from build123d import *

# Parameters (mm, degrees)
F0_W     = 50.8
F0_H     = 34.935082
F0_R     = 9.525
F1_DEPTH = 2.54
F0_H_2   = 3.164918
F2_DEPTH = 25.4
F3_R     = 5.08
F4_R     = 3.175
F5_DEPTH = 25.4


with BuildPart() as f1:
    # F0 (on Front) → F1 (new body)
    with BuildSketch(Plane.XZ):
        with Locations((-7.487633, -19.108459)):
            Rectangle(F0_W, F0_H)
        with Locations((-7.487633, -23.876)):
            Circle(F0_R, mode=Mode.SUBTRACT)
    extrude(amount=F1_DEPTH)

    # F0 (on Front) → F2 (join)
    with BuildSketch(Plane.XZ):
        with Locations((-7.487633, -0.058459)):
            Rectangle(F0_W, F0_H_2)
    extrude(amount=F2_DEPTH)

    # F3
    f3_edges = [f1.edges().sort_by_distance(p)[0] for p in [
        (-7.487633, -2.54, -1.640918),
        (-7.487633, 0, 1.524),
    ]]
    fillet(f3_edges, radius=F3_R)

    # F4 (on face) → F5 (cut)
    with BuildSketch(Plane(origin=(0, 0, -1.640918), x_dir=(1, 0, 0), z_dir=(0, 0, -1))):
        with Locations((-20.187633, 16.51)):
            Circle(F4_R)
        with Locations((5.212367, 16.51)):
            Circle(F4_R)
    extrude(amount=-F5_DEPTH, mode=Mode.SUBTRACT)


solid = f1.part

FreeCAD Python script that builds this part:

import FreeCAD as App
import Part
import Sketcher
from FreeCAD import Vector
Q = App.Units.Quantity


def edges_at(feature, points):
    """Names of the edges that pass closest to the given points."""
    edges = feature.Shape.Edges
    near = lambda p: min(range(len(edges)), key=lambda i: edges[i].distToShape(Part.Vertex(*p))[0])
    return sorted({f"Edge{near(p) + 1}" for p in points})

doc = App.newDocument("Part")
body = doc.addObject("PartDesign::Body", "Body")

# Sketch on XZ plane
sketch1 = body.newObject("Sketcher::SketchObject", "Sketch")
sketch1.AttachmentSupport = (doc.getObject("XZ_Plane"), [""])
sketch1.MapMode = "FlatFace"
sketch1.addGeometry([
    Part.LineSegment(Vector(-33, -2, 0), Vector(-33, -37, 0)),  # 0
    Part.LineSegment(Vector(-33, -37, 0), Vector(18, -37, 0)),  # 1
    Part.LineSegment(Vector(18, -37, 0), Vector(18, -2, 0)),  # 2
    Part.LineSegment(Vector(18, -2, 0), Vector(-33, -2, 0)),  # 3
    Part.Circle(Vector(-7, -24, 0), Vector(0, 0, 1), 10),  # 4
], False)
sketch1.addConstraint([
    Sketcher.Constraint("Coincident", 0, 2, 1, 1),
    Sketcher.Constraint("Coincident", 1, 2, 2, 1),
    Sketcher.Constraint("Coincident", 2, 2, 3, 1),
    Sketcher.Constraint("Coincident", 3, 2, 0, 1),
    Sketcher.Constraint("Vertical", 0),
    Sketcher.Constraint("Horizontal", 1),
    Sketcher.Constraint("Vertical", 2),
    Sketcher.Constraint("Horizontal", 3),
    Sketcher.Constraint("Diameter", 4, Q("0.75 in")),
    Sketcher.Constraint("DistanceX", 1, 1, 1, 2, Q("2 in")),
    Sketcher.Constraint("DistanceX", 0, 2, 4, 3, Q("1 in")),
    Sketcher.Constraint("DistanceY", 0, 2, 4, 3, Q("0.5 in")),
    Sketcher.Constraint("DistanceY", 4, 3, -1, 1, Q("0.94 in")),
    Sketcher.Constraint("DistanceY", 0, 2, 0, 1, 34.935082),
    Sketcher.Constraint("DistanceX", 4, 3, -1, 1, 7.487633),
])
pad1 = body.newObject("PartDesign::Pad", "Pad")
pad1.Profile = sketch1
pad1.Length = Q("0.1 in")

# Sketch on XZ plane
sketch2 = body.newObject("Sketcher::SketchObject", "Sketch001")
sketch2.AttachmentSupport = (doc.getObject("XZ_Plane"), [""])
sketch2.MapMode = "FlatFace"
sketch2.addGeometry([
    Part.LineSegment(Vector(-32.9, 1.5, 0), Vector(-32.9, -1.6, 0)),
    Part.LineSegment(Vector(-32.9, -1.6, 0), Vector(17.9, -1.6, 0)),
    Part.LineSegment(Vector(17.9, -1.6, 0), Vector(17.9, 1.5, 0)),
    Part.LineSegment(Vector(17.9, 1.5, 0), Vector(-32.9, 1.5, 0)),
], False)
sketch2.addConstraint([
    Sketcher.Constraint("Coincident", 0, 2, 1, 1),
    Sketcher.Constraint("Coincident", 1, 2, 2, 1),
    Sketcher.Constraint("Coincident", 2, 2, 3, 1),
    Sketcher.Constraint("Coincident", 3, 2, 0, 1),
    Sketcher.Constraint("Vertical", 0),
    Sketcher.Constraint("Horizontal", 1),
    Sketcher.Constraint("Vertical", 2),
    Sketcher.Constraint("Horizontal", 3),
    Sketcher.Constraint("DistanceX", 1, 1, 1, 2, Q("2 in")),
    Sketcher.Constraint("DistanceY", -1, 1, 2, 2, Q("0.06 in")),
    Sketcher.Constraint("DistanceY", 0, 2, 0, 1, 3.164918),
    Sketcher.Constraint("DistanceX", 0, 2, -1, 1, 32.887633),
])
pad2 = body.newObject("PartDesign::Pad", "Pad001")
pad2.Profile = sketch2
pad2.Length = Q("1 in")
doc.recompute()

fillet = body.newObject("PartDesign::Fillet", "Fillet")
fillet.Base = (pad2, edges_at(pad2, [(-7.488, -2.54, -1.641), (-7.488, 0, 1.524)]))
fillet.Radius = Q("0.2 in")

# Sketch on XY plane
sketch3 = body.newObject("Sketcher::SketchObject", "Sketch002")
sketch3.AttachmentSupport = (doc.getObject("XY_Plane"), [""])
sketch3.MapMode = "FlatFace"
sketch3.AttachmentOffset = App.Placement(Vector(0, 0, -1.640918), App.Rotation())
sketch3.addGeometry([
    Part.Circle(Vector(-20.2, -16.5, 0), Vector(0, 0, 1), 3.2),
    Part.Circle(Vector(5.2, -16.5, 0), Vector(0, 0, 1), 3.2),
], False)
sketch3.addConstraint([
    Sketcher.Constraint("Equal", 0, 1),
    Sketcher.Constraint("Horizontal", 0, 3, 1, 3),
    Sketcher.Constraint("Diameter", 0, Q("0.25 in")),
    Sketcher.Constraint("DistanceX", 0, 3, 1, 3, Q("1 in")),
    Sketcher.Constraint("DistanceY", 0, 3, -1, 1, Q("0.65 in")),
    Sketcher.Constraint("DistanceX", 0, 3, -1, 1, 20.187633),
])
pocket1 = body.newObject("PartDesign::Pocket", "Pocket")
pocket1.Profile = sketch3
pocket1.Length = Q("1 in")
pocket1.Reversed = True

doc.recompute()
